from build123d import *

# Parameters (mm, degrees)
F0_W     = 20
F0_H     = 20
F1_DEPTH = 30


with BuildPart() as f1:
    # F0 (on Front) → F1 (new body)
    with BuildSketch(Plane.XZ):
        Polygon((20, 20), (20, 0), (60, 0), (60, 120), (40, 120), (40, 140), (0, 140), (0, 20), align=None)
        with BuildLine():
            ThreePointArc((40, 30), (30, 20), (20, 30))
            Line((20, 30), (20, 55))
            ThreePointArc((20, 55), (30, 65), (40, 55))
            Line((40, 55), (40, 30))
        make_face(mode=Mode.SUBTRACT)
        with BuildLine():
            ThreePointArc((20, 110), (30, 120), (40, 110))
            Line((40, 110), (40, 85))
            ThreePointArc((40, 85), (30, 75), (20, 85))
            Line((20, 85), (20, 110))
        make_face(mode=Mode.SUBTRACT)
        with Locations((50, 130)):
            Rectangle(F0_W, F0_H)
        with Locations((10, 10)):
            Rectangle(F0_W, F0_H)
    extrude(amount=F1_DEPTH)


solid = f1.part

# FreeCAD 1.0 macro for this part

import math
import FreeCAD as App
import Part
import Sketcher

doc = App.newDocument("Part")
body = doc.addObject("PartDesign::Body", "Body")

# Sketch on XZ plane
sketch1 = doc.addObject("Sketcher::SketchObject", "Sketch")
body.addObject(sketch1)
sketch1.AttachmentSupport = (doc.XZ_Plane, [""])
sketch1.MapMode = "FlatFace"
sketch1.addGeometry([
    Part.LineSegment(App.Vector(60, 0, 0), App.Vector(60, 140, 0)),  # 0
    Part.LineSegment(App.Vector(60, 140, 0), App.Vector(0, 140, 0)),  # 1
    Part.LineSegment(App.Vector(0, 140, 0), App.Vector(0, 0, 0)),  # 2
    Part.LineSegment(App.Vector(0, 0, 0), App.Vector(60, 0, 0)),  # 3
    Part.LineSegment(App.Vector(40, 55, 0), App.Vector(40, 30, 0)),  # 4
    Part.ArcOfCircle(Part.Circle(App.Vector(30, 30, 0), App.Vector(0, 0, 1), 10), math.radians(180), math.radians(360)),  # 5
    Part.LineSegment(App.Vector(20, 30, 0), App.Vector(20, 55, 0)),  # 6
    Part.ArcOfCircle(Part.Circle(App.Vector(30, 55, 0), App.Vector(0, 0, 1), 10), math.radians(0), math.radians(180)),  # 7
    Part.LineSegment(App.Vector(20, 85, 0), App.Vector(20, 110, 0)),  # 8
    Part.ArcOfCircle(Part.Circle(App.Vector(30, 110, 0), App.Vector(0, 0, 1), 10), math.radians(0), math.radians(180)),  # 9
    Part.LineSegment(App.Vector(40, 110, 0), App.Vector(40, 85, 0)),  # 10
    Part.ArcOfCircle(Part.Circle(App.Vector(30, 85, 0), App.Vector(0, 0, 1), 10), math.radians(180), math.radians(360)),  # 11
], False)
sketch1.addConstraint([
    Sketcher.Constraint("Coincident", 0, 2, 1, 1),
    Sketcher.Constraint("Coincident", 1, 2, 2, 1),
    Sketcher.Constraint("Coincident", 2, 2, 3, 1),
    Sketcher.Constraint("Coincident", 3, 2, 0, 1),
    Sketcher.Constraint("Tangent", 4, 2, 5, 2),
    Sketcher.Constraint("Tangent", 5, 1, 6, 1),
    Sketcher.Constraint("Tangent", 6, 2, 7, 2),
    Sketcher.Constraint("Tangent", 7, 1, 4, 1),
    Sketcher.Constraint("Tangent", 8, 2, 9, 2),
    Sketcher.Constraint("Tangent", 9, 1, 10, 1),
    Sketcher.Constraint("Tangent", 10, 2, 11, 2),
    Sketcher.Constraint("Tangent", 11, 1, 8, 1),
    Sketcher.Constraint("Vertical", 0),
    Sketcher.Constraint("Horizontal", 1),
    Sketcher.Constraint("Vertical", 2),
    Sketcher.Constraint("Horizontal", 3),
    Sketcher.Constraint("Vertical", 4),
    Sketcher.Constraint("Vertical", 6),
    Sketcher.Constraint("Vertical", 8),
    Sketcher.Constraint("Vertical", 10),
    Sketcher.Constraint("Coincident", 2, 2, -1, 1),
    Sketcher.Constraint("Equal", 7, 9),
    Sketcher.Constraint("Vertical", 7, 3, 9, 3),
    Sketcher.Constraint("Equal", 6, 8),
    Sketcher.Constraint("Radius", 5, 10.0),
    Sketcher.Constraint("DistanceX", 1, 2, 1, 1, 60.0),
    Sketcher.Constraint("DistanceY", 0, 1, 0, 2, 140.0),
    Sketcher.Constraint("DistanceY", 4, 2, 4, 1, 25.0),
    Sketcher.Constraint("DistanceX", -1, 1, 5, 3, 30.0),
    Sketcher.Constraint("DistanceY", -1, 1, 5, 3, 30.0),
    Sketcher.Constraint("DistanceY", -1, 1, 9, 3, 110.0),
])
pad1 = doc.addObject("PartDesign::Pad", "Pad")
body.addObject(pad1)
pad1.Profile = sketch1
pad1.Length = 30

doc.recompute()
